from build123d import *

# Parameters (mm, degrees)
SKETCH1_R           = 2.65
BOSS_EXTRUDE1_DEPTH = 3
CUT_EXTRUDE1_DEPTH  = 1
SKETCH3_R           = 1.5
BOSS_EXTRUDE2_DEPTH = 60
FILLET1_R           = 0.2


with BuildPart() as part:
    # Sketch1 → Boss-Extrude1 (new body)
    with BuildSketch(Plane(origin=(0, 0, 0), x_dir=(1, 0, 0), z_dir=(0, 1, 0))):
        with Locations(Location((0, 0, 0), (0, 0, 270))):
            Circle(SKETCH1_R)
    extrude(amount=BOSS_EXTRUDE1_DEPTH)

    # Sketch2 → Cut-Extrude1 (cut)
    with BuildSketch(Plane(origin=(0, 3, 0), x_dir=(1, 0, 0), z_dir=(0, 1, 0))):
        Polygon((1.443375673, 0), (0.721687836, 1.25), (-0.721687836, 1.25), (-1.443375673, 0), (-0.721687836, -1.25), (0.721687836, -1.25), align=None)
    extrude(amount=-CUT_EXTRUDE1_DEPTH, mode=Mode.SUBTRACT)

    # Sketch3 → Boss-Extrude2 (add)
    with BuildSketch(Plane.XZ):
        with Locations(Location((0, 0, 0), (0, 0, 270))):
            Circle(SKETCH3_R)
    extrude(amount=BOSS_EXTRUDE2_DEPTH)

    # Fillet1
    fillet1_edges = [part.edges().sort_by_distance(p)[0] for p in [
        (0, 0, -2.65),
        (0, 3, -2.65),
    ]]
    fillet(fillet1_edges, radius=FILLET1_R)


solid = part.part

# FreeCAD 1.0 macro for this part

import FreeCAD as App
import Part
import Sketcher
from FreeCAD import Vector
Q = App.Units.Quantity


def edges_at(feature, points):
    """Names of the edges that pass closest to the given points."""
    edges = feature.Shape.Edges
    near = lambda p: min(range(len(edges)), key=lambda i: edges[i].distToShape(Part.Vertex(*p))[0])
    return sorted({f"Edge{near(p) + 1}" for p in points})

doc = App.newDocument("Part")
body = doc.addObject("PartDesign::Body", "Body")

# Sketch on XZ plane
sketch1 = body.newObject("Sketcher::SketchObject", "Sketch")
sketch1.AttachmentSupport = (doc.getObject("XZ_Plane"), [""])
sketch1.MapMode = "FlatFace"
sketch1.addGeometry(Part.Circle(Vector(0, 0, 0), Vector(0, 0, 1), 2.6), False)
sketch1.addConstraint(Sketcher.Constraint("Coincident", 0, 3, -1, 1))
sketch1.addConstraint(Sketcher.Constraint("Diameter", 0, 5.3))
pad1 = body.newObject("PartDesign::Pad", "Pad")
pad1.Profile = sketch1
pad1.Length = 3
pad1.Reversed = True

# Sketch on XZ plane
sketch2 = body.newObject("Sketcher::SketchObject", "Sketch001")
sketch2.AttachmentSupport = (doc.getObject("XZ_Plane"), [""])
sketch2.MapMode = "FlatFace"
sketch2.AttachmentOffset = App.Placement(Vector(0, 0, -3), App.Rotation())
sketch2.addGeometry(Part.LineSegment(Vector(1.4, 0, 0), Vector(0.7, -1.2, 0)), False)
sketch2.addGeometry(Part.LineSegment(Vector(0.7, -1.2, 0), Vector(-0.7, -1.2, 0)), False)
sketch2.addGeometry(Part.LineSegment(Vector(-0.7, -1.2, 0), Vector(-1.4, 0, 0)), False)
sketch2.addGeometry(Part.LineSegment(Vector(-1.4, 0, 0), Vector(-0.7, 1.2, 0)), False)
sketch2.addGeometry(Part.LineSegment(Vector(-0.7, 1.2, 0), Vector(0.7, 1.2, 0)), False)
sketch2.addGeometry(Part.LineSegment(Vector(0.7, 1.2, 0), Vector(1.4, 0, 0)), False)
sketch2.addConstraint(Sketcher.Constraint("Coincident", 0, 2, 1, 1))
sketch2.addConstraint(Sketcher.Constraint("Coincident", 1, 2, 2, 1))
sketch2.addConstraint(Sketcher.Constraint("Coincident", 2, 2, 3, 1))
sketch2.addConstraint(Sketcher.Constraint("Coincident", 3, 2, 4, 1))
sketch2.addConstraint(Sketcher.Constraint("Coincident", 4, 2, 5, 1))
sketch2.addConstraint(Sketcher.Constraint("Coincident", 5, 2, 0, 1))
sketch2.addConstraint(Sketcher.Constraint("Horizontal", 1))
sketch2.addConstraint(Sketcher.Constraint("Horizontal", 4))
sketch2.addConstraint(Sketcher.Constraint("Symmetric", 0, 2, 3, 2, -1, 1))
sketch2.addConstraint(Sketcher.Constraint("Symmetric", 2, 2, 5, 2, -1, 1))
sketch2.addConstraint(Sketcher.Constraint("PointOnObject", 2, 2, -1))
sketch2.addConstraint(Sketcher.Constraint("Parallel", 2, 5))
sketch2.addConstraint(Sketcher.Constraint("Vertical", 1, 2, 3, 2))
sketch2.addConstraint(Sketcher.Constraint("Angle", 0, Q("-120 deg")))
sketch2.addConstraint(Sketcher.Constraint("DistanceY", 1, 2, 3, 2, 2.5))
sketch2.addConstraint(Sketcher.Constraint("DistanceX", 1, 2, 1, 1, 1.443376))
pocket1 = body.newObject("PartDesign::Pocket", "Pocket")
pocket1.Profile = sketch2
pocket1.Length = 1
pocket1.Reversed = True

# Sketch on XZ plane
sketch3 = body.newObject("Sketcher::SketchObject", "Sketch002")
sketch3.AttachmentSupport = (doc.getObject("XZ_Plane"), [""])
sketch3.MapMode = "FlatFace"
sketch3.addGeometry(Part.Circle(Vector(0, 0, 0), Vector(0, 0, 1), 1.5), False)
sketch3.addConstraint(Sketcher.Constraint("Coincident", 0, 3, -1, 1))
sketch3.addConstraint(Sketcher.Constraint("Diameter", 0, 3.0))
pad2 = body.newObject("PartDesign::Pad", "Pad001")
pad2.Profile = sketch3
pad2.Length = 60
doc.recompute()

fillet = body.newObject("PartDesign::Fillet", "Fillet")
fillet.Base = (pad2, edges_at(pad2, [(0, 0, -2.65), (0, 3, -2.65)]))
fillet.Radius = 0.2

doc.recompute()
